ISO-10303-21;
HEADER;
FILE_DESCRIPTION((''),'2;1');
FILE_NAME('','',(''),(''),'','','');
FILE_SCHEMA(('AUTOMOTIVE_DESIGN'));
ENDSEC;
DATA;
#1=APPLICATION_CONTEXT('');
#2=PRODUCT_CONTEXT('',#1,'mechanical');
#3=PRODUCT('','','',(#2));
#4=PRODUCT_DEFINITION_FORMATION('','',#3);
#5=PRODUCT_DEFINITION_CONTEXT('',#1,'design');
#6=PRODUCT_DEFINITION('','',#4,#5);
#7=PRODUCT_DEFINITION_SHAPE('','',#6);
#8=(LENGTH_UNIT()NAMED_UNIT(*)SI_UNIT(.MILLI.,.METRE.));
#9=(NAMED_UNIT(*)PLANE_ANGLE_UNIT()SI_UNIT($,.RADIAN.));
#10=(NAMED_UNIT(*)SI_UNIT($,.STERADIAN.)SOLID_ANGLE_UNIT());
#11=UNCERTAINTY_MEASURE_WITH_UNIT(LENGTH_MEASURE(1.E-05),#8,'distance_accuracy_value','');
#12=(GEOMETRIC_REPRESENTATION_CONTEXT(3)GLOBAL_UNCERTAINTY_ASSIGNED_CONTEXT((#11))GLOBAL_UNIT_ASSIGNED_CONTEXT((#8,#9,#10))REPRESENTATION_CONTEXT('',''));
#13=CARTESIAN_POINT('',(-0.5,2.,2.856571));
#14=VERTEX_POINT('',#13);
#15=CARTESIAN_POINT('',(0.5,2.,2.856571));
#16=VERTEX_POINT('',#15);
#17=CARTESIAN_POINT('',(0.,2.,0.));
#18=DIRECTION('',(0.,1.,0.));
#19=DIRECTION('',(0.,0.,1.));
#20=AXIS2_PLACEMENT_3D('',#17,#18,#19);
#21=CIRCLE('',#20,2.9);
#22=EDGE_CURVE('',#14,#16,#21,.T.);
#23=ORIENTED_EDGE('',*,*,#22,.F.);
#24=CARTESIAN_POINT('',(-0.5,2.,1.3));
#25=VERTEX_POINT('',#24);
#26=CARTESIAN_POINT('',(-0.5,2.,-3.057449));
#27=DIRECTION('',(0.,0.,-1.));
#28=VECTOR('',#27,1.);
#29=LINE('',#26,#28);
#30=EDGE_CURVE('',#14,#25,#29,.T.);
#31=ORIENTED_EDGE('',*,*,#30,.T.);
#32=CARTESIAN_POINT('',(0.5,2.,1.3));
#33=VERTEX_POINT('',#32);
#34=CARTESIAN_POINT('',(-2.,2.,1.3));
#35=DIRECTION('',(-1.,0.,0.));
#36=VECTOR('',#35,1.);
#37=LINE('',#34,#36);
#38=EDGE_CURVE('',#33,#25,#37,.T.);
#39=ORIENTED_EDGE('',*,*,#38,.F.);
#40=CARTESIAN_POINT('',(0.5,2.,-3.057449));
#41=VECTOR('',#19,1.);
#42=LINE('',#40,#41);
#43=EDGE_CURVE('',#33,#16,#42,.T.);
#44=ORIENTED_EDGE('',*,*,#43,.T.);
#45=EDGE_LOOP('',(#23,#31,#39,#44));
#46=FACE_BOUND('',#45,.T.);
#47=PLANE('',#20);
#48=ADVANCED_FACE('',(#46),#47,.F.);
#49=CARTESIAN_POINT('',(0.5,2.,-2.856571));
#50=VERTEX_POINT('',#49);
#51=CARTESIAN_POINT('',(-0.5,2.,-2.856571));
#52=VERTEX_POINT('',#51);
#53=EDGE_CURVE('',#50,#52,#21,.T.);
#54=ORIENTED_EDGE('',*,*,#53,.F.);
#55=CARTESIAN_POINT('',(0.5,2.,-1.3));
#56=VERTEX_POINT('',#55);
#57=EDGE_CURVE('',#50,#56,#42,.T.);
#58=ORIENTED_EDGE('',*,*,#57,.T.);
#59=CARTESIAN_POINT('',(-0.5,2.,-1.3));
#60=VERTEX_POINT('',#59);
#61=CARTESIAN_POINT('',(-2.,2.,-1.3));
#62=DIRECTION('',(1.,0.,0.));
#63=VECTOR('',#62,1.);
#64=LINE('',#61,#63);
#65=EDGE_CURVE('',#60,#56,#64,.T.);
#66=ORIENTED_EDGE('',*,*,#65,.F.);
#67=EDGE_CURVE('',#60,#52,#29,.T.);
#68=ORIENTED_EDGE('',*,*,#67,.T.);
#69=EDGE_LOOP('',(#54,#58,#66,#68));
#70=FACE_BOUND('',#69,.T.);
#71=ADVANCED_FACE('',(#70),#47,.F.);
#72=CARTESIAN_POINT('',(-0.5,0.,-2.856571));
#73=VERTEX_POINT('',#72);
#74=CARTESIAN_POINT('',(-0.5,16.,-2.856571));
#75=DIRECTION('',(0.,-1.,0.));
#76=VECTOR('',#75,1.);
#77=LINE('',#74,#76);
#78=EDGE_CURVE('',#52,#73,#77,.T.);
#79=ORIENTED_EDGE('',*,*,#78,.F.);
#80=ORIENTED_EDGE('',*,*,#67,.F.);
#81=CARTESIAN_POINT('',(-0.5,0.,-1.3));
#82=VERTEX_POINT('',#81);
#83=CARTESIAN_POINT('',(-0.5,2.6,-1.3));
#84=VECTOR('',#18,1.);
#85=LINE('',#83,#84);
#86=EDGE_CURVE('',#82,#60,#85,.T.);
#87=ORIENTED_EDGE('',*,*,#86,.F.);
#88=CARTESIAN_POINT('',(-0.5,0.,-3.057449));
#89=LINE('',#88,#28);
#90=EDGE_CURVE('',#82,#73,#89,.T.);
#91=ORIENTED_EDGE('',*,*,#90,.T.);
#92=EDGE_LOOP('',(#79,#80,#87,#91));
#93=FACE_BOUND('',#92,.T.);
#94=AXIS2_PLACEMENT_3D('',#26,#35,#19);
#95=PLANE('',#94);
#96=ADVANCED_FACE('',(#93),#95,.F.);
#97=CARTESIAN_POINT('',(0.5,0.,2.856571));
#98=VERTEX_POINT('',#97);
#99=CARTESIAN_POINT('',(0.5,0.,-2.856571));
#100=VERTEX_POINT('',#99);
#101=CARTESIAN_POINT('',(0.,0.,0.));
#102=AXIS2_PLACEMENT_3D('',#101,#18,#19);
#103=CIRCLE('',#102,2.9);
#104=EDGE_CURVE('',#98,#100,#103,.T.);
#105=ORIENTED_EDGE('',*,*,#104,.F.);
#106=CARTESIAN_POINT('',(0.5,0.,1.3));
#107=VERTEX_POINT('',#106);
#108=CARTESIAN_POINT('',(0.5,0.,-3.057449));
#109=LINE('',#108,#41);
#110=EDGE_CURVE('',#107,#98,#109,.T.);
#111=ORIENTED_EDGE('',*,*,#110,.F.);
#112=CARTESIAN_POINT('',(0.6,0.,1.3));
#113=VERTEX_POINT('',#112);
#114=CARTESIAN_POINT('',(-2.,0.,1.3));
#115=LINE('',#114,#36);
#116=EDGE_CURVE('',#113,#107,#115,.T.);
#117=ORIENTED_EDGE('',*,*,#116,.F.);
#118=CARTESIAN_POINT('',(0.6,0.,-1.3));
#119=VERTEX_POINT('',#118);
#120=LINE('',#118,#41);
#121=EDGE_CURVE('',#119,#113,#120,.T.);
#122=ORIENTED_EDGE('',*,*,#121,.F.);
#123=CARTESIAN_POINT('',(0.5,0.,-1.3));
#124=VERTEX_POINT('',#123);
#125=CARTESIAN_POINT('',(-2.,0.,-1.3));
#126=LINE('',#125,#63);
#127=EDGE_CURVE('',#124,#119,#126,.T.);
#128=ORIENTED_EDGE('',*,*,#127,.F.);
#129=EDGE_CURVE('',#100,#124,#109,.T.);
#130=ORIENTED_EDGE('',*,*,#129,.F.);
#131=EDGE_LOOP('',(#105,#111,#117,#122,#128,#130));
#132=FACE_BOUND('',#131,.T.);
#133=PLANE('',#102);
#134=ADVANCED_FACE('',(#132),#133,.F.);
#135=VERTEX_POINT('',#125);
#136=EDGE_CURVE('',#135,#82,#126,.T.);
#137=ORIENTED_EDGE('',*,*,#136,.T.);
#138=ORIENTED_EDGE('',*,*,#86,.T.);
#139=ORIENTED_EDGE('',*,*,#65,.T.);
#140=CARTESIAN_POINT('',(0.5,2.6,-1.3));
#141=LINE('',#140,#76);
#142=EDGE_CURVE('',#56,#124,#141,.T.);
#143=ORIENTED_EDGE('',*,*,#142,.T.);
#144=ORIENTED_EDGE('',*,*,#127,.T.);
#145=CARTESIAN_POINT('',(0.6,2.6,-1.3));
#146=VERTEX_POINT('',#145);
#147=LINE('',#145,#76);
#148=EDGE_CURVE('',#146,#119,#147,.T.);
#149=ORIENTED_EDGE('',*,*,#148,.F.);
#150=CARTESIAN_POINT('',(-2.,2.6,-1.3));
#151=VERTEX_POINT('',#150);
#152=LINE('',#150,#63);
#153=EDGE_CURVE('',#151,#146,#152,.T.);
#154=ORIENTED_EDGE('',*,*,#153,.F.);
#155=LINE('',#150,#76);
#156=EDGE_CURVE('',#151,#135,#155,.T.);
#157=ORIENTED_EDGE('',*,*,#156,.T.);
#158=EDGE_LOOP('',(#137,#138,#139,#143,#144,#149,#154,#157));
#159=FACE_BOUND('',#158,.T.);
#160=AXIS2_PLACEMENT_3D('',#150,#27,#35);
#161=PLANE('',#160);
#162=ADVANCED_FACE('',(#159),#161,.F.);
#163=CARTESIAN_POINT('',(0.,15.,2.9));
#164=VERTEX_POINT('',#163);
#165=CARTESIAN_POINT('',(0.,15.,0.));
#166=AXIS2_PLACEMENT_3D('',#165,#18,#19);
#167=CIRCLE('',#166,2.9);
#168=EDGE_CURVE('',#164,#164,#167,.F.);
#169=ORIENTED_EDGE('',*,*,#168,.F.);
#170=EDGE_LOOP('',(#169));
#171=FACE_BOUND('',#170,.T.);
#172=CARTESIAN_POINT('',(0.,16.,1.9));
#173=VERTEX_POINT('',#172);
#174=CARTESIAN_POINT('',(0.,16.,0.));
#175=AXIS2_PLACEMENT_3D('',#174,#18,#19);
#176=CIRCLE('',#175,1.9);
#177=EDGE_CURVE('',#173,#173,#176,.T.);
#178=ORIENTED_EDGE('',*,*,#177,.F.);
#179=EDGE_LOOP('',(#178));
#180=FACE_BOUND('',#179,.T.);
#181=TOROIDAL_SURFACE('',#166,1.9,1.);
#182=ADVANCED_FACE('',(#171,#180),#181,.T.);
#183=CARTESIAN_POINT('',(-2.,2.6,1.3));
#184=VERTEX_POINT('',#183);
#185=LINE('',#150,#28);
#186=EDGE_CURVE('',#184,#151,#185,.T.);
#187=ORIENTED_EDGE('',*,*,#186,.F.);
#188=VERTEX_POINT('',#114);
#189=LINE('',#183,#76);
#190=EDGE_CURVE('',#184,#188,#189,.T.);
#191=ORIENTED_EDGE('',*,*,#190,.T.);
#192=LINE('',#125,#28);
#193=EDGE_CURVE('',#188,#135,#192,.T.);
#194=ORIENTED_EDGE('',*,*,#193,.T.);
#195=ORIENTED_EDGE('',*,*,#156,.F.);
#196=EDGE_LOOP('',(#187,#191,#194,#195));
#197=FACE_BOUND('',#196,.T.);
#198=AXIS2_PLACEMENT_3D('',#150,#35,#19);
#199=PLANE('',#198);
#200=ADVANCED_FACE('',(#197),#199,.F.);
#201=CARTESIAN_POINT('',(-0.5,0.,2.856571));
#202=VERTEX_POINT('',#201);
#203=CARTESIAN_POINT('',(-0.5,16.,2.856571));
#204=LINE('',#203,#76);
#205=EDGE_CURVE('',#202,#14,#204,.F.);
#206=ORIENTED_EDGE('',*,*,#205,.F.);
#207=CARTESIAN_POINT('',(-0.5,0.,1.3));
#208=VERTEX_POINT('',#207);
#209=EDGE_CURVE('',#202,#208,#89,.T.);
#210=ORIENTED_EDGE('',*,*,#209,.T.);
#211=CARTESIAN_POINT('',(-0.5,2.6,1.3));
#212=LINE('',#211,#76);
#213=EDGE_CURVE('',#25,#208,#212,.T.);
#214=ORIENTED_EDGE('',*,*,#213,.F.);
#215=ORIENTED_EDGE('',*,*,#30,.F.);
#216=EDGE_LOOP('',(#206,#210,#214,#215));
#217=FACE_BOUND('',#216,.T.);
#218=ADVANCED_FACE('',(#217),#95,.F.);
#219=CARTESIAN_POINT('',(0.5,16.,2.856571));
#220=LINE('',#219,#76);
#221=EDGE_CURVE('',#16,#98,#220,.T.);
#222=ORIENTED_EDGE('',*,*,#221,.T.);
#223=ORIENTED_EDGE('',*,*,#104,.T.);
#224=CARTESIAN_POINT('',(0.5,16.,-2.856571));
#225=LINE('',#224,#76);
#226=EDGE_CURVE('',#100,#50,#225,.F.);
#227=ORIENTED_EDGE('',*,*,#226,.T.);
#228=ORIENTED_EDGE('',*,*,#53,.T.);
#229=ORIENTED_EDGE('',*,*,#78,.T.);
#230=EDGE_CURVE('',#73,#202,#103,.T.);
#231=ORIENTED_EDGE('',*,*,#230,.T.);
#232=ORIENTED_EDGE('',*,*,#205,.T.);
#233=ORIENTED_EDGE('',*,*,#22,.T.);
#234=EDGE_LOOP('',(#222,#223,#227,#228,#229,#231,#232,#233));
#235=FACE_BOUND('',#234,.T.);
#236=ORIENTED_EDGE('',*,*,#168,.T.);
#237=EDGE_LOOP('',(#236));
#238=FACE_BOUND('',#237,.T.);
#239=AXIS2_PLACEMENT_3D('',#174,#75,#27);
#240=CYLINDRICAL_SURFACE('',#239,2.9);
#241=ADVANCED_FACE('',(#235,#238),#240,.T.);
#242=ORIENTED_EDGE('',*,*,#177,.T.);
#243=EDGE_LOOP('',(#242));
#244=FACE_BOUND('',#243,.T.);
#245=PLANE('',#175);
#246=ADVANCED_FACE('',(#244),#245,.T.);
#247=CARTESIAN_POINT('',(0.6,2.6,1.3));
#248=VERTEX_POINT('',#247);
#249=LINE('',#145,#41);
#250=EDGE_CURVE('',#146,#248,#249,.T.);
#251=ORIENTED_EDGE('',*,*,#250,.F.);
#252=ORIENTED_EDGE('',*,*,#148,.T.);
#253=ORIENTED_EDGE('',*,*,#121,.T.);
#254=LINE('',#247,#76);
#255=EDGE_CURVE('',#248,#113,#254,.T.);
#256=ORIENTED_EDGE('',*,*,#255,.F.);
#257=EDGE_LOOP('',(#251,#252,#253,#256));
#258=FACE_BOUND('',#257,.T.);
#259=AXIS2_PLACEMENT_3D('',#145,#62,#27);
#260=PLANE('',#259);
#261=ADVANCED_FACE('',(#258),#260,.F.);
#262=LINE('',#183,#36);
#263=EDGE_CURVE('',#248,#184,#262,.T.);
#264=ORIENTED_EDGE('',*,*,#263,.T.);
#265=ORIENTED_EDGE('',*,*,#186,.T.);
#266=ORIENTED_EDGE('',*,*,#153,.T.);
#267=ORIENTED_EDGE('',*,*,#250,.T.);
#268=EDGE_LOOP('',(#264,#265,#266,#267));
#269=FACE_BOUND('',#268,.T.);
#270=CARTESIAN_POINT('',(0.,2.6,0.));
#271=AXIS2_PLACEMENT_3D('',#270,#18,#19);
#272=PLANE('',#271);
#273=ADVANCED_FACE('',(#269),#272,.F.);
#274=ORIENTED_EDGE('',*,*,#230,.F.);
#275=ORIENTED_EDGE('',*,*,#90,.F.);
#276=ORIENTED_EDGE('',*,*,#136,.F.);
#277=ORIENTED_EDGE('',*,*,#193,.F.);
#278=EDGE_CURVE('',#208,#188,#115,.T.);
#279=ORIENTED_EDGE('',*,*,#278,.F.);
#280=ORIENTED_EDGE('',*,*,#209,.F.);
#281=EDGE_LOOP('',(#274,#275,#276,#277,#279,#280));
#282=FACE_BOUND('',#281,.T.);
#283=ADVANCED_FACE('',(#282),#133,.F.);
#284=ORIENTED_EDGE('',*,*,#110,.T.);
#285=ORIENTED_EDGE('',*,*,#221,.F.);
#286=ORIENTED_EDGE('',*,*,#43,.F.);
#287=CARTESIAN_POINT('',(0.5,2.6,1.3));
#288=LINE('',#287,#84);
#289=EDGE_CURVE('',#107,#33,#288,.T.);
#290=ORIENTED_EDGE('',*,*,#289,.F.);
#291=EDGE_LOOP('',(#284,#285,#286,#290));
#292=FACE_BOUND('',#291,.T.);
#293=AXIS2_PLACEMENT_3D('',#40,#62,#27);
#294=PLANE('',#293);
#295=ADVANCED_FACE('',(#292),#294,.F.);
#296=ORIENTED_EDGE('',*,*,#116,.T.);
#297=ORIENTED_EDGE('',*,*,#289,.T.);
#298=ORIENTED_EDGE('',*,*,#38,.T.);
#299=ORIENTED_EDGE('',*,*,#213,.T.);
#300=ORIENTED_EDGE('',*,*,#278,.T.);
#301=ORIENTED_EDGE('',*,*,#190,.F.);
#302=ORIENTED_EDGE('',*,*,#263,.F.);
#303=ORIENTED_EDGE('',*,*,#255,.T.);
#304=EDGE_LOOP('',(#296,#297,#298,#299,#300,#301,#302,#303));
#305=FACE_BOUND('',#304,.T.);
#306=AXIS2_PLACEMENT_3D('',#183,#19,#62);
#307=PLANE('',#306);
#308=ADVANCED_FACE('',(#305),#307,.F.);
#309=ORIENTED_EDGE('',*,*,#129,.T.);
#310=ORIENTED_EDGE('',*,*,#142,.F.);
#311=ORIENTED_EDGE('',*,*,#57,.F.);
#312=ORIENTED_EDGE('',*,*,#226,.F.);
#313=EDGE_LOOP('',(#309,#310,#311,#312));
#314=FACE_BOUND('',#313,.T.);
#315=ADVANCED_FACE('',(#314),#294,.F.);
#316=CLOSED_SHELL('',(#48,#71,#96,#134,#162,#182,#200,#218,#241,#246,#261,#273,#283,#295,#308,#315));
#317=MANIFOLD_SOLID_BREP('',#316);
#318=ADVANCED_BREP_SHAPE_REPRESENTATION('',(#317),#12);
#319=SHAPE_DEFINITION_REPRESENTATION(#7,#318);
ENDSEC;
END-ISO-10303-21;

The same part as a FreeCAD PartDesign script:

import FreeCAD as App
import Part
import Sketcher
from FreeCAD import Vector


def edges_at(feature, points):
    """Names of the edges that pass closest to the given points."""
    edges = feature.Shape.Edges
    near = lambda p: min(range(len(edges)), key=lambda i: edges[i].distToShape(Part.Vertex(*p))[0])
    return sorted({f"Edge{near(p) + 1}" for p in points})


def add_polygon(sketch, points):
    """Adds a closed chain of lines whose ends are joined by coincident constraints."""
    first, n = sketch.GeometryCount, len(points)
    for a, b in zip(points, points[1:] + points[:1]):
        sketch.addGeometry(Part.LineSegment(App.Vector(*a, 0), App.Vector(*b, 0)), False)
    for i in range(n):
        sketch.addConstraint(Sketcher.Constraint("Coincident", first + i, 2, first + (i + 1) % n, 1))

doc = App.newDocument("Part")
body = doc.addObject("PartDesign::Body", "Body")

sketch1 = doc.addObject("Sketcher::SketchObject", "Sketch")
body.addObject(sketch1)
sketch1.AttachmentSupport = (doc.XZ_Plane, [""])
sketch1.MapMode = "FlatFace"
sketch1.addGeometry(Part.Circle(Vector(0, 0, 0), Vector(0, 0, 1), 2.9), False)
sketch1.addConstraint([
    Sketcher.Constraint("Coincident", 0, 3, -1, 1),
    Sketcher.Constraint("Diameter", 0, 5.8),
])
pad1 = doc.addObject("PartDesign::Pad", "Pad")
body.addObject(pad1)
pad1.Profile = sketch1
pad1.Length = 16
pad1.Reversed = True
doc.recompute()

fillet = doc.addObject("PartDesign::Fillet", "Fillet")
body.addObject(fillet)
fillet.Base = (pad1, edges_at(pad1, [(0, 16, -2.9)]))
fillet.Radius = 1

sketch2 = doc.addObject("Sketcher::SketchObject", "Sketch001")
body.addObject(sketch2)
sketch2.AttachmentSupport = (doc.XZ_Plane, [""])
sketch2.MapMode = "FlatFace"
add_polygon(sketch2, [(-2, 1.3), (-2, -1.3), (0.6, -1.3), (0.6, 1.3)])
sketch2.addConstraint([
    Sketcher.Constraint("Vertical", 0),
    Sketcher.Constraint("Horizontal", 1),
    Sketcher.Constraint("Vertical", 2),
    Sketcher.Constraint("Horizontal", 3),
    Sketcher.Constraint("Equal", 3, 0),
    Sketcher.Constraint("DistanceX", 1, 1, 1, 2, 2.6),
    Sketcher.Constraint("DistanceX", 0, 2, -1, 1, 2.0),
    Sketcher.Constraint("DistanceY", 0, 2, -1, 1, 1.3),
])
pocket1 = doc.addObject("PartDesign::Pocket", "Pocket")
body.addObject(pocket1)
pocket1.Profile = sketch2
pocket1.Length = 2.6

sketch3 = doc.addObject("Sketcher::SketchObject", "Sketch002")
body.addObject(sketch3)
sketch3.AttachmentSupport = (doc.XZ_Plane, [""])
sketch3.MapMode = "FlatFace"
add_polygon(sketch3, [(-0.5, 3.1), (-0.5, -3.1), (0.5, -3.1), (0.5, 3.1)])
sketch3.addConstraint([
    Sketcher.Constraint("Vertical", 0),
    Sketcher.Constraint("Horizontal", 1),
    Sketcher.Constraint("Vertical", 2),
    Sketcher.Constraint("Horizontal", 3),
    Sketcher.Constraint("Symmetric", 0, 2, 2, 2, -1, 1),
    Sketcher.Constraint("DistanceX", 1, 1, 1, 2, 1.0),
    Sketcher.Constraint("DistanceY", 0, 2, 0, 1, 6.114897),
])
pocket2 = doc.addObject("PartDesign::Pocket", "Pocket001")
body.addObject(pocket2)
pocket2.Profile = sketch3
pocket2.Length = 2

doc.recompute()
